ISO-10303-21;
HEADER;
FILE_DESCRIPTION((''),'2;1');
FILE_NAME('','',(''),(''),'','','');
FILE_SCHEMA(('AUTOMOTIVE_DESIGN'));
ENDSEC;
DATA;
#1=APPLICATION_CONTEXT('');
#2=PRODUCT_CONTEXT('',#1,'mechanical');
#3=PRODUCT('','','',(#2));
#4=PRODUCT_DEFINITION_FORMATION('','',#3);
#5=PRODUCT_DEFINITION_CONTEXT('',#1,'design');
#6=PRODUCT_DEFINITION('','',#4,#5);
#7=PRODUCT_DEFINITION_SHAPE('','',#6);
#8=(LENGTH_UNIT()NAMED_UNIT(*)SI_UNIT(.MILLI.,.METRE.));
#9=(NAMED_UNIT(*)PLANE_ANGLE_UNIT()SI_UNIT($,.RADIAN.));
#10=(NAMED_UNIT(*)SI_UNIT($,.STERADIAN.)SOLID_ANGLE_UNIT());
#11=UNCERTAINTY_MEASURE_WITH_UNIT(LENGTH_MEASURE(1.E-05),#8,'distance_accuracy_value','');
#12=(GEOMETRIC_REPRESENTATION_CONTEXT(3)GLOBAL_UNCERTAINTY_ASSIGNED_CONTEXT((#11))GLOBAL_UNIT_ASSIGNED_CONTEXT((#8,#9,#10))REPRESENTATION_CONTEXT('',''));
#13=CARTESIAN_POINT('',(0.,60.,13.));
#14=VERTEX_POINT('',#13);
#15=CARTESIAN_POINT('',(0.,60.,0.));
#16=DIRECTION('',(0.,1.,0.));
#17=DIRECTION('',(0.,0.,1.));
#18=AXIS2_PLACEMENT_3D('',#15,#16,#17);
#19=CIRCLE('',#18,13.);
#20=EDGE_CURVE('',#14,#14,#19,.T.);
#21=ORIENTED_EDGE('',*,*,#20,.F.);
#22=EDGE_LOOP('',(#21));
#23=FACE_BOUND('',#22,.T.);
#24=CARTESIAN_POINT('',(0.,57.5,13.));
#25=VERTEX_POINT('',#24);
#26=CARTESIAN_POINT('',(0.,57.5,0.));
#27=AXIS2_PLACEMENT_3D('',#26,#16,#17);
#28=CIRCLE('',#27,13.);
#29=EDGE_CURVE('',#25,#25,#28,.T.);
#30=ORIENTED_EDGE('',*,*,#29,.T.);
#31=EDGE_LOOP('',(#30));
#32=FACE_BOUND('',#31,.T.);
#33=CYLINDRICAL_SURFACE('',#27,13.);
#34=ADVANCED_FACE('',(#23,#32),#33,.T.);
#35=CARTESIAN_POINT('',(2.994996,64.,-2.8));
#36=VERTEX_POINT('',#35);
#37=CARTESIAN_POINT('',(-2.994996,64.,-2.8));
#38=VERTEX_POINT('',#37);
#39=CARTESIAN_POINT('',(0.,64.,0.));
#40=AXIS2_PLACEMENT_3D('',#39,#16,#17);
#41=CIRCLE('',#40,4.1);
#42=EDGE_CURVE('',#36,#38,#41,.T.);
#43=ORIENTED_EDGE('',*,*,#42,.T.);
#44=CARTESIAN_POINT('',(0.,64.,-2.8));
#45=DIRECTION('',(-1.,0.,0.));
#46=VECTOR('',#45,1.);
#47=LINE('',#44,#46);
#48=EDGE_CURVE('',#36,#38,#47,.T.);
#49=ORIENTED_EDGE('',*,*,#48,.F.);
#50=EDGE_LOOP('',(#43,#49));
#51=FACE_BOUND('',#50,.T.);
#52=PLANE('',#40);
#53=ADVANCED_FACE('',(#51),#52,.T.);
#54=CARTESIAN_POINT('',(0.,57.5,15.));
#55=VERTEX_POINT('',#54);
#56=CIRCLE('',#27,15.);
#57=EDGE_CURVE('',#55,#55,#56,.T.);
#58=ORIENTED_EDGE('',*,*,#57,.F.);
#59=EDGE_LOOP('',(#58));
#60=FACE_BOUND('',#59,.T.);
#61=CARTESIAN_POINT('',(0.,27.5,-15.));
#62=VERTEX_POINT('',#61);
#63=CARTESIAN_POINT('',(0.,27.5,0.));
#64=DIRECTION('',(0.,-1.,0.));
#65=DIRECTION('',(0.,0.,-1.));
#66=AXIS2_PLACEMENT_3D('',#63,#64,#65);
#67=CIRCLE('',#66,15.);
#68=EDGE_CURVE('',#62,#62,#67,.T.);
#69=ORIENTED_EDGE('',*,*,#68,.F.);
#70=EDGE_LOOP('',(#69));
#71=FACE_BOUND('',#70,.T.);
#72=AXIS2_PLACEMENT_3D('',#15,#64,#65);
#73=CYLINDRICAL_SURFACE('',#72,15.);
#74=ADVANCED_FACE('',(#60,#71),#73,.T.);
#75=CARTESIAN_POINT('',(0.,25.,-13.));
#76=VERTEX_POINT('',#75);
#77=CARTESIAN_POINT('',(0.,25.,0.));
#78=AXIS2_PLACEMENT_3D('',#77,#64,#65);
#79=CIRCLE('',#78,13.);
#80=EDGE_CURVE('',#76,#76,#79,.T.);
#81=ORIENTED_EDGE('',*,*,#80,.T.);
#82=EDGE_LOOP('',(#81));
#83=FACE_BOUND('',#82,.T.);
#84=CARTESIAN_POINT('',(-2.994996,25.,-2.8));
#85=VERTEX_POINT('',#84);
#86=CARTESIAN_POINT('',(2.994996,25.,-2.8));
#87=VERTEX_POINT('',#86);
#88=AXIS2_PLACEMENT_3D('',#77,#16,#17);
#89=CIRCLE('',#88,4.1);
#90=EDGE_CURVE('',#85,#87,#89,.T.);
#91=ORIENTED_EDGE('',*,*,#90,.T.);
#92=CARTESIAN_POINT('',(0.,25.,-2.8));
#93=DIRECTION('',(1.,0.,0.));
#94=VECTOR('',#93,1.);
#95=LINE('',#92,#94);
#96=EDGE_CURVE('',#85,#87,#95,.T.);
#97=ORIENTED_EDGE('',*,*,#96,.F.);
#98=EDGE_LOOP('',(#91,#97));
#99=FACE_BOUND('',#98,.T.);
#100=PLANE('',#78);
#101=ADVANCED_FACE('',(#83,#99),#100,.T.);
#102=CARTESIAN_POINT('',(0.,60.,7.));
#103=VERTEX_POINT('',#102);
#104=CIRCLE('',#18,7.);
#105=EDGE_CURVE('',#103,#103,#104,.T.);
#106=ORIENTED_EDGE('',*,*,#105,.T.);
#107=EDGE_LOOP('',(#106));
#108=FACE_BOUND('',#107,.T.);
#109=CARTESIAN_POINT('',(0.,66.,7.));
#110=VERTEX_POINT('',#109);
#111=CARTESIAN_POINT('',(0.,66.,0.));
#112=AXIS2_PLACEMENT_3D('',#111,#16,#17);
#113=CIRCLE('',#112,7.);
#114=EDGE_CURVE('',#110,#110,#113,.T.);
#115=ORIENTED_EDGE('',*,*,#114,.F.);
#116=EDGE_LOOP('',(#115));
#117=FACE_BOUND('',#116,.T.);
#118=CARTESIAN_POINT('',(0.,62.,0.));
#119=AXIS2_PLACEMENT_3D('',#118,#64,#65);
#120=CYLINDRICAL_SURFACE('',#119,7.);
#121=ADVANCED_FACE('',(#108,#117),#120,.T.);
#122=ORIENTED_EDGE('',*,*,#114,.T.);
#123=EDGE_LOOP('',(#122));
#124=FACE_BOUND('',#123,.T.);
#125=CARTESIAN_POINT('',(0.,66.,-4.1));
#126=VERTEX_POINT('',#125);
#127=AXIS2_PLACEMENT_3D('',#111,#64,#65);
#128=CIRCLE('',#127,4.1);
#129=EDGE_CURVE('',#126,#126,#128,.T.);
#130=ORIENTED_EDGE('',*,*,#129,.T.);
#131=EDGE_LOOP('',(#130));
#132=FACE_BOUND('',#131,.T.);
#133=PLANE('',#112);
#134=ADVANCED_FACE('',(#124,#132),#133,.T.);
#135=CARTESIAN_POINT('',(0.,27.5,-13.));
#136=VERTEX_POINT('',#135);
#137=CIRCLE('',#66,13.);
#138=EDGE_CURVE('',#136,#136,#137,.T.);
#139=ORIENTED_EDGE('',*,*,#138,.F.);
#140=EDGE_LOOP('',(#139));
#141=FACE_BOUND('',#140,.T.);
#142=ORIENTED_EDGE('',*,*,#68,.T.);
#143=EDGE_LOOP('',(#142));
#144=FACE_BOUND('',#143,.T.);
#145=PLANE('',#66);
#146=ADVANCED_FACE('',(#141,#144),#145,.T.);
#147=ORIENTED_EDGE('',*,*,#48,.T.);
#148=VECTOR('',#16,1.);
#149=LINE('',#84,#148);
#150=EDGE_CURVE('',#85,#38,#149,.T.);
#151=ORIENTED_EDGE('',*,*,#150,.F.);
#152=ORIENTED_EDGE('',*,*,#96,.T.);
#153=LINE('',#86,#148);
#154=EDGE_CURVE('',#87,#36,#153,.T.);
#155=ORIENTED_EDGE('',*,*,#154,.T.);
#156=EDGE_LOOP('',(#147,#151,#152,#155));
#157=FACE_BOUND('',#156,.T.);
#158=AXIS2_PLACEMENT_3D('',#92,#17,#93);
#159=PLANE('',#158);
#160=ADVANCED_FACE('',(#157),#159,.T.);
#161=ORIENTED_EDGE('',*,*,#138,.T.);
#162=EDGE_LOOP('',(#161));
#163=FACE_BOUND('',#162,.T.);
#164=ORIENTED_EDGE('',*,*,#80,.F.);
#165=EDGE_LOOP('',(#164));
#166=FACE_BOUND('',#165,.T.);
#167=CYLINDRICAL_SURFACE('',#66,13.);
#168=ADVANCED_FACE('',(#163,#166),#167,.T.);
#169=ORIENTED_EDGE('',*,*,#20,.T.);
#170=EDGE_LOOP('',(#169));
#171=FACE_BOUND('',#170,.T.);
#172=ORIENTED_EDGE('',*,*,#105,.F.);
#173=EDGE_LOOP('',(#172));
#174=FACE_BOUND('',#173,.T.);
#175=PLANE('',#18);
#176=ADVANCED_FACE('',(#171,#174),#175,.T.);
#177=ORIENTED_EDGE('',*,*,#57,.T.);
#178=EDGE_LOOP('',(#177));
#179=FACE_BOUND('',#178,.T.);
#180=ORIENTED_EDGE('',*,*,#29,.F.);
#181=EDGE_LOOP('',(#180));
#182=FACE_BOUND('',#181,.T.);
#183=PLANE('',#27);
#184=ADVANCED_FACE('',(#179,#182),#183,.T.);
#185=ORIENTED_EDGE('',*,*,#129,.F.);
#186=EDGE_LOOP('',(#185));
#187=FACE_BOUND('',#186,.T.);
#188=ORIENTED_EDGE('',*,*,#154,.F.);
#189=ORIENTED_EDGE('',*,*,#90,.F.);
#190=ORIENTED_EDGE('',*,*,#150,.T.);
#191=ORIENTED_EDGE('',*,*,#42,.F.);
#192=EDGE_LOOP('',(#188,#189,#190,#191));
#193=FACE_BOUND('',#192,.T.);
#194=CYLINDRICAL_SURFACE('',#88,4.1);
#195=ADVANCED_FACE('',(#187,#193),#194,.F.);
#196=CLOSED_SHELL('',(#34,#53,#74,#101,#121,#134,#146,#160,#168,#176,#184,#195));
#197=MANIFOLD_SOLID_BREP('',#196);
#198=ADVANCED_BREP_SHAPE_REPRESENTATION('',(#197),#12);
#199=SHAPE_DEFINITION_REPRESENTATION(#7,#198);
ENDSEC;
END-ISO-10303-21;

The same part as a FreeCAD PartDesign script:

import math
import FreeCAD as App
import Part
import Sketcher
from FreeCAD import Vector

doc = App.newDocument("Part")
params = doc.addObject("Spreadsheet::Sheet", "Params")
for row, (alias, value) in enumerate([
    ("sketch1_diameter", "30 mm"),
    ("pad1_length", "60 mm"),
    ("sketch2_diameter", "30 mm"),
    ("sketch2_diameter2", "26 mm"),
    ("pocket1_length", "2.5 mm"),
    ("sketch3_diameter", "30 mm"),
    ("pocket2_length", "25 mm"),
    ("sketch4_diameter", "30 mm"),
    ("sketch4_diameter2", "26 mm"),
    ("pocket3_length", "2.5 mm"),
    ("pad2_length", "9.5 mm"),
    ("sketch6_diameter", "14 mm"),
    ("pad3_length", "2 mm"),
    ("sketch7_diameter", "38 mm"),
    ("sketch8_radius", "4.1 mm"),
    ("sketch9_diameter", "14 mm"),
    ("pad4_length", "2 mm"),
    ("sketch10_radius", "4.1 mm"),
    ("sketch11_diameter", "14 mm"),
    ("pad5_length", "2 mm"),
    ("sketch12_radius", "4.1 mm"),
    ("sketch13_diameter", "8.2 mm"),
    ("pocket8_length", "2 mm"),
], start=1):
    params.set(f"A{row}", alias)
    params.set(f"B{row}", "=" + value)
    params.setAlias(f"B{row}", alias)

body = doc.addObject("PartDesign::Body", "Body")

# Sketch on XZ plane
sketch1 = body.newObject("Sketcher::SketchObject", "Sketch")
sketch1.AttachmentSupport = (doc.getObject("XZ_Plane"), [""])
sketch1.MapMode = "FlatFace"
sketch1.addGeometry(Part.Circle(Vector(0, 0, 0), Vector(0, 0, 1), 15), False)
sketch1.addConstraint([
    Sketcher.Constraint("Coincident", 0, 3, -1, 1),
    Sketcher.Constraint("Diameter", 0, 30.0),
])
sketch1.setExpression("Constraints[1]", "Params.sketch1_diameter")
pad1 = body.newObject("PartDesign::Pad", "Pad")
pad1.Profile = sketch1
pad1.setExpression("Length", "Params.pad1_length")
pad1.Reversed = True

# Sketch on XZ plane
sketch2 = body.newObject("Sketcher::SketchObject", "Sketch001")
sketch2.AttachmentSupport = (doc.getObject("XZ_Plane"), [""])
sketch2.MapMode = "FlatFace"
sketch2.AttachmentOffset = App.Placement(Vector(0, 0, -57.5), App.Rotation())
sketch2.addGeometry([
    Part.Circle(Vector(0, 0, 0), Vector(0, 0, 1), 15),
    Part.Circle(Vector(0, 0, 0), Vector(0, 0, 1), 13),
], False)
sketch2.addConstraint([
    Sketcher.Constraint("Coincident", 0, 3, -1, 1),
    Sketcher.Constraint("Coincident", 1, 3, -1, 1),
    Sketcher.Constraint("Diameter", 0, 30.0),
    Sketcher.Constraint("Diameter", 1, 26.0),
])
sketch2.setExpression("Constraints[2]", "Params.sketch2_diameter")
sketch2.setExpression("Constraints[3]", "Params.sketch2_diameter2")
pocket1 = body.newObject("PartDesign::Pocket", "Pocket")
pocket1.Profile = sketch2
pocket1.setExpression("Length", "Params.pocket1_length")

# Sketch on XZ plane
sketch3 = body.newObject("Sketcher::SketchObject", "Sketch002")
sketch3.AttachmentSupport = (doc.getObject("XZ_Plane"), [""])
sketch3.MapMode = "FlatFace"
sketch3.addGeometry(Part.Circle(Vector(0, 0, 0), Vector(0, 0, 1), 15), False)
sketch3.addConstraint([
    Sketcher.Constraint("Coincident", 0, 3, -1, 1),
    Sketcher.Constraint("Diameter", 0, 30.0),
])
sketch3.setExpression("Constraints[1]", "Params.sketch3_diameter")
pocket2 = body.newObject("PartDesign::Pocket", "Pocket001")
pocket2.Profile = sketch3
pocket2.setExpression("Length", "Params.pocket2_length")

# Sketch on XZ plane
sketch4 = body.newObject("Sketcher::SketchObject", "Sketch003")
sketch4.AttachmentSupport = (doc.getObject("XZ_Plane"), [""])
sketch4.MapMode = "FlatFace"
sketch4.AttachmentOffset = App.Placement(Vector(0, 0, -25), App.Rotation())
sketch4.addGeometry([
    Part.Circle(Vector(0, 0, 0), Vector(0, 0, 1), 15),
    Part.Circle(Vector(0, 0, 0), Vector(0, 0, 1), 13),
], False)
sketch4.addConstraint([
    Sketcher.Constraint("Coincident", 0, 3, -1, 1),
    Sketcher.Constraint("Coincident", 1, 3, -1, 1),
    Sketcher.Constraint("Diameter", 0, 30.0),
    Sketcher.Constraint("Diameter", 1, 26.0),
])
sketch4.setExpression("Constraints[2]", "Params.sketch4_diameter")
sketch4.setExpression("Constraints[3]", "Params.sketch4_diameter2")
pocket3 = body.newObject("PartDesign::Pocket", "Pocket002")
pocket3.Profile = sketch4
pocket3.setExpression("Length", "Params.pocket3_length")

# Sketch on XZ plane
sketch5 = body.newObject("Sketcher::SketchObject", "Sketch004")
sketch5.AttachmentSupport = (doc.getObject("XZ_Plane"), [""])
sketch5.MapMode = "FlatFace"
sketch5.AttachmentOffset = App.Placement(Vector(0, 0, -25), App.Rotation())
sketch5.addGeometry(Part.Circle(Vector(0, 0, 0), Vector(0, 0, 1), 2.9), False)
sketch5.addConstraint([
    Sketcher.Constraint("Coincident", 0, 3, -1, 1),
    Sketcher.Constraint("Diameter", 0, 5.740918),
])
pad2 = body.newObject("PartDesign::Pad", "Pad001")
pad2.Profile = sketch5
pad2.setExpression("Length", "Params.pad2_length")

# Sketch on XZ plane
sketch6 = body.newObject("Sketcher::SketchObject", "Sketch005")
sketch6.AttachmentSupport = (doc.getObject("XZ_Plane"), [""])
sketch6.MapMode = "FlatFace"
sketch6.AttachmentOffset = App.Placement(Vector(0, 0, -60), App.Rotation())
sketch6.addGeometry(Part.Circle(Vector(0, 0, 0), Vector(0, 0, 1), 7), False)
sketch6.addConstraint([
    Sketcher.Constraint("Coincident", 0, 3, -1, 1),
    Sketcher.Constraint("Diameter", 0, 14.0),
])
sketch6.setExpression("Constraints[1]", "Params.sketch6_diameter")
pad3 = body.newObject("PartDesign::Pad", "Pad002")
pad3.Profile = sketch6
pad3.setExpression("Length", "Params.pad3_length")
pad3.Reversed = True

# Sketch on XZ plane
sketch7 = body.newObject("Sketcher::SketchObject", "Sketch006")
sketch7.AttachmentSupport = (doc.getObject("XZ_Plane"), [""])
sketch7.MapMode = "FlatFace"
sketch7.AttachmentOffset = App.Placement(Vector(0, 0, -25), App.Rotation())
sketch7.addGeometry(Part.Circle(Vector(0, 0, 0), Vector(0, 0, 1), 19), False)
sketch7.addConstraint([
    Sketcher.Constraint("Coincident", 0, 3, -1, 1),
    Sketcher.Constraint("Diameter", 0, 38.0),
])
sketch7.setExpression("Constraints[1]", "Params.sketch7_diameter")
pocket4 = body.newObject("PartDesign::Pocket", "Pocket003")
pocket4.Profile = sketch7
pocket4.Type = "ThroughAll"
pocket4.Reversed = True

# Sketch on XZ plane
sketch8 = body.newObject("Sketcher::SketchObject", "Sketch007")
sketch8.AttachmentSupport = (doc.getObject("XZ_Plane"), [""])
sketch8.MapMode = "FlatFace"
sketch8.AttachmentOffset = App.Placement(Vector(0, 0, -62), App.Rotation())
sketch8.addGeometry([
    Part.ArcOfCircle(Part.Circle(Vector(0, 0, 0), Vector(0, 0, 1), 4.1), math.radians(90), math.radians(223)),
    Part.ArcOfCircle(Part.Circle(Vector(0, 0, 0), Vector(0, 0, 1), 4.1), math.radians(-43), math.radians(90)),
    Part.LineSegment(Vector(3, -2.8, 0), Vector(-3, -2.8, 0)),
], False)
sketch8.addConstraint([
    Sketcher.Constraint("Tangent", 0, 1, 1, 2),
    Sketcher.Constraint("Coincident", 1, 1, 2, 1),
    Sketcher.Constraint("Coincident", 2, 2, 0, 2),
    Sketcher.Constraint("Horizontal", 2),
    Sketcher.Constraint("Coincident", 0, 3, -1, 1),
    Sketcher.Constraint("Equal", 0, 1),
    Sketcher.Constraint("PointOnObject", 0, 1, -2),
    Sketcher.Constraint("Radius", 0, 4.1),
    Sketcher.Constraint("DistanceY", 1, 1, -1, 1, 2.8),
])
sketch8.setExpression("Constraints[7]", "Params.sketch8_radius")
pocket5 = body.newObject("PartDesign::Pocket", "Pocket004")
pocket5.Profile = sketch8
pocket5.Type = "ThroughAll"
pocket5.Reversed = True

# Sketch on XZ plane
sketch9 = body.newObject("Sketcher::SketchObject", "Sketch008")
sketch9.AttachmentSupport = (doc.getObject("XZ_Plane"), [""])
sketch9.MapMode = "FlatFace"
sketch9.AttachmentOffset = App.Placement(Vector(0, 0, -62), App.Rotation())
sketch9.addGeometry(Part.Circle(Vector(0, 0, 0), Vector(0, 0, 1), 7), False)
sketch9.addConstraint([
    Sketcher.Constraint("Coincident", 0, 3, -1, 1),
    Sketcher.Constraint("Diameter", 0, 14.0),
])
sketch9.setExpression("Constraints[1]", "Params.sketch9_diameter")
pad4 = body.newObject("PartDesign::Pad", "Pad003")
pad4.Profile = sketch9
pad4.setExpression("Length", "Params.pad4_length")
pad4.Reversed = True

# Sketch on XZ plane
sketch10 = body.newObject("Sketcher::SketchObject", "Sketch009")
sketch10.AttachmentSupport = (doc.getObject("XZ_Plane"), [""])
sketch10.MapMode = "FlatFace"
sketch10.AttachmentOffset = App.Placement(Vector(0, 0, -25), App.Rotation())
sketch10.addGeometry([
    Part.LineSegment(Vector(-3, -2.8, 0), Vector(3, -2.8, 0)),
    Part.ArcOfCircle(Part.Circle(Vector(0, 0, 0), Vector(0, 0, 1), 4.1), math.radians(-43), math.radians(223)),
], False)
sketch10.addConstraint([
    Sketcher.Constraint("Coincident", 0, 1, 1, 2),
    Sketcher.Constraint("Coincident", 1, 1, 0, 2),
    Sketcher.Constraint("Horizontal", 0),
    Sketcher.Constraint("Coincident", 1, 3, -1, 1),
    Sketcher.Constraint("Radius", 1, 4.1),
    Sketcher.Constraint("DistanceY", 0, 1, -1, 1, 2.8),
])
sketch10.setExpression("Constraints[4]", "Params.sketch10_radius")
pocket6 = body.newObject("PartDesign::Pocket", "Pocket005")
pocket6.Profile = sketch10
pocket6.Type = "ThroughAll"

# Sketch on XZ plane
sketch11 = body.newObject("Sketcher::SketchObject", "Sketch010")
sketch11.AttachmentSupport = (doc.getObject("XZ_Plane"), [""])
sketch11.MapMode = "FlatFace"
sketch11.AttachmentOffset = App.Placement(Vector(0, 0, -64), App.Rotation())
sketch11.addGeometry(Part.Circle(Vector(0, 0, 0), Vector(0, 0, 1), 7), False)
sketch11.addConstraint([
    Sketcher.Constraint("Coincident", 0, 3, -1, 1),
    Sketcher.Constraint("Diameter", 0, 14.0),
])
sketch11.setExpression("Constraints[1]", "Params.sketch11_diameter")
pad5 = body.newObject("PartDesign::Pad", "Pad004")
pad5.Profile = sketch11
pad5.setExpression("Length", "Params.pad5_length")
pad5.Reversed = True

# Sketch on XZ plane
sketch12 = body.newObject("Sketcher::SketchObject", "Sketch011")
sketch12.AttachmentSupport = (doc.getObject("XZ_Plane"), [""])
sketch12.MapMode = "FlatFace"
sketch12.AttachmentOffset = App.Placement(Vector(0, 0, -25), App.Rotation())
sketch12.addGeometry([
    Part.LineSegment(Vector(-3, -2.8, 0), Vector(3, -2.8, 0)),
    Part.ArcOfCircle(Part.Circle(Vector(0, 0, 0), Vector(0, 0, 1), 4.1), math.radians(-43), math.radians(223)),
], False)
sketch12.addConstraint([
    Sketcher.Constraint("Coincident", 0, 1, 1, 2),
    Sketcher.Constraint("Coincident", 1, 1, 0, 2),
    Sketcher.Constraint("Horizontal", 0),
    Sketcher.Constraint("Coincident", 1, 3, -1, 1),
    Sketcher.Constraint("Radius", 1, 4.1),
    Sketcher.Constraint("DistanceY", 0, 1, -1, 1, 2.8),
])
sketch12.setExpression("Constraints[4]", "Params.sketch12_radius")
pocket7 = body.newObject("PartDesign::Pocket", "Pocket006")
pocket7.Profile = sketch12
pocket7.Type = "ThroughAll"

# Sketch on XZ plane
sketch13 = body.newObject("Sketcher::SketchObject", "Sketch012")
sketch13.AttachmentSupport = (doc.getObject("XZ_Plane"), [""])
sketch13.MapMode = "FlatFace"
sketch13.AttachmentOffset = App.Placement(Vector(0, 0, -64), App.Rotation())
sketch13.addGeometry(Part.Circle(Vector(0, 0, 0), Vector(0, 0, 1), 4.1), False)
sketch13.addConstraint([
    Sketcher.Constraint("Coincident", 0, 3, -1, 1),
    Sketcher.Constraint("Diameter", 0, 8.2),
])
sketch13.setExpression("Constraints[1]", "Params.sketch13_diameter")
pocket8 = body.newObject("PartDesign::Pocket", "Pocket007")
pocket8.Profile = sketch13
pocket8.setExpression("Length", "Params.pocket8_length")

doc.recompute()
